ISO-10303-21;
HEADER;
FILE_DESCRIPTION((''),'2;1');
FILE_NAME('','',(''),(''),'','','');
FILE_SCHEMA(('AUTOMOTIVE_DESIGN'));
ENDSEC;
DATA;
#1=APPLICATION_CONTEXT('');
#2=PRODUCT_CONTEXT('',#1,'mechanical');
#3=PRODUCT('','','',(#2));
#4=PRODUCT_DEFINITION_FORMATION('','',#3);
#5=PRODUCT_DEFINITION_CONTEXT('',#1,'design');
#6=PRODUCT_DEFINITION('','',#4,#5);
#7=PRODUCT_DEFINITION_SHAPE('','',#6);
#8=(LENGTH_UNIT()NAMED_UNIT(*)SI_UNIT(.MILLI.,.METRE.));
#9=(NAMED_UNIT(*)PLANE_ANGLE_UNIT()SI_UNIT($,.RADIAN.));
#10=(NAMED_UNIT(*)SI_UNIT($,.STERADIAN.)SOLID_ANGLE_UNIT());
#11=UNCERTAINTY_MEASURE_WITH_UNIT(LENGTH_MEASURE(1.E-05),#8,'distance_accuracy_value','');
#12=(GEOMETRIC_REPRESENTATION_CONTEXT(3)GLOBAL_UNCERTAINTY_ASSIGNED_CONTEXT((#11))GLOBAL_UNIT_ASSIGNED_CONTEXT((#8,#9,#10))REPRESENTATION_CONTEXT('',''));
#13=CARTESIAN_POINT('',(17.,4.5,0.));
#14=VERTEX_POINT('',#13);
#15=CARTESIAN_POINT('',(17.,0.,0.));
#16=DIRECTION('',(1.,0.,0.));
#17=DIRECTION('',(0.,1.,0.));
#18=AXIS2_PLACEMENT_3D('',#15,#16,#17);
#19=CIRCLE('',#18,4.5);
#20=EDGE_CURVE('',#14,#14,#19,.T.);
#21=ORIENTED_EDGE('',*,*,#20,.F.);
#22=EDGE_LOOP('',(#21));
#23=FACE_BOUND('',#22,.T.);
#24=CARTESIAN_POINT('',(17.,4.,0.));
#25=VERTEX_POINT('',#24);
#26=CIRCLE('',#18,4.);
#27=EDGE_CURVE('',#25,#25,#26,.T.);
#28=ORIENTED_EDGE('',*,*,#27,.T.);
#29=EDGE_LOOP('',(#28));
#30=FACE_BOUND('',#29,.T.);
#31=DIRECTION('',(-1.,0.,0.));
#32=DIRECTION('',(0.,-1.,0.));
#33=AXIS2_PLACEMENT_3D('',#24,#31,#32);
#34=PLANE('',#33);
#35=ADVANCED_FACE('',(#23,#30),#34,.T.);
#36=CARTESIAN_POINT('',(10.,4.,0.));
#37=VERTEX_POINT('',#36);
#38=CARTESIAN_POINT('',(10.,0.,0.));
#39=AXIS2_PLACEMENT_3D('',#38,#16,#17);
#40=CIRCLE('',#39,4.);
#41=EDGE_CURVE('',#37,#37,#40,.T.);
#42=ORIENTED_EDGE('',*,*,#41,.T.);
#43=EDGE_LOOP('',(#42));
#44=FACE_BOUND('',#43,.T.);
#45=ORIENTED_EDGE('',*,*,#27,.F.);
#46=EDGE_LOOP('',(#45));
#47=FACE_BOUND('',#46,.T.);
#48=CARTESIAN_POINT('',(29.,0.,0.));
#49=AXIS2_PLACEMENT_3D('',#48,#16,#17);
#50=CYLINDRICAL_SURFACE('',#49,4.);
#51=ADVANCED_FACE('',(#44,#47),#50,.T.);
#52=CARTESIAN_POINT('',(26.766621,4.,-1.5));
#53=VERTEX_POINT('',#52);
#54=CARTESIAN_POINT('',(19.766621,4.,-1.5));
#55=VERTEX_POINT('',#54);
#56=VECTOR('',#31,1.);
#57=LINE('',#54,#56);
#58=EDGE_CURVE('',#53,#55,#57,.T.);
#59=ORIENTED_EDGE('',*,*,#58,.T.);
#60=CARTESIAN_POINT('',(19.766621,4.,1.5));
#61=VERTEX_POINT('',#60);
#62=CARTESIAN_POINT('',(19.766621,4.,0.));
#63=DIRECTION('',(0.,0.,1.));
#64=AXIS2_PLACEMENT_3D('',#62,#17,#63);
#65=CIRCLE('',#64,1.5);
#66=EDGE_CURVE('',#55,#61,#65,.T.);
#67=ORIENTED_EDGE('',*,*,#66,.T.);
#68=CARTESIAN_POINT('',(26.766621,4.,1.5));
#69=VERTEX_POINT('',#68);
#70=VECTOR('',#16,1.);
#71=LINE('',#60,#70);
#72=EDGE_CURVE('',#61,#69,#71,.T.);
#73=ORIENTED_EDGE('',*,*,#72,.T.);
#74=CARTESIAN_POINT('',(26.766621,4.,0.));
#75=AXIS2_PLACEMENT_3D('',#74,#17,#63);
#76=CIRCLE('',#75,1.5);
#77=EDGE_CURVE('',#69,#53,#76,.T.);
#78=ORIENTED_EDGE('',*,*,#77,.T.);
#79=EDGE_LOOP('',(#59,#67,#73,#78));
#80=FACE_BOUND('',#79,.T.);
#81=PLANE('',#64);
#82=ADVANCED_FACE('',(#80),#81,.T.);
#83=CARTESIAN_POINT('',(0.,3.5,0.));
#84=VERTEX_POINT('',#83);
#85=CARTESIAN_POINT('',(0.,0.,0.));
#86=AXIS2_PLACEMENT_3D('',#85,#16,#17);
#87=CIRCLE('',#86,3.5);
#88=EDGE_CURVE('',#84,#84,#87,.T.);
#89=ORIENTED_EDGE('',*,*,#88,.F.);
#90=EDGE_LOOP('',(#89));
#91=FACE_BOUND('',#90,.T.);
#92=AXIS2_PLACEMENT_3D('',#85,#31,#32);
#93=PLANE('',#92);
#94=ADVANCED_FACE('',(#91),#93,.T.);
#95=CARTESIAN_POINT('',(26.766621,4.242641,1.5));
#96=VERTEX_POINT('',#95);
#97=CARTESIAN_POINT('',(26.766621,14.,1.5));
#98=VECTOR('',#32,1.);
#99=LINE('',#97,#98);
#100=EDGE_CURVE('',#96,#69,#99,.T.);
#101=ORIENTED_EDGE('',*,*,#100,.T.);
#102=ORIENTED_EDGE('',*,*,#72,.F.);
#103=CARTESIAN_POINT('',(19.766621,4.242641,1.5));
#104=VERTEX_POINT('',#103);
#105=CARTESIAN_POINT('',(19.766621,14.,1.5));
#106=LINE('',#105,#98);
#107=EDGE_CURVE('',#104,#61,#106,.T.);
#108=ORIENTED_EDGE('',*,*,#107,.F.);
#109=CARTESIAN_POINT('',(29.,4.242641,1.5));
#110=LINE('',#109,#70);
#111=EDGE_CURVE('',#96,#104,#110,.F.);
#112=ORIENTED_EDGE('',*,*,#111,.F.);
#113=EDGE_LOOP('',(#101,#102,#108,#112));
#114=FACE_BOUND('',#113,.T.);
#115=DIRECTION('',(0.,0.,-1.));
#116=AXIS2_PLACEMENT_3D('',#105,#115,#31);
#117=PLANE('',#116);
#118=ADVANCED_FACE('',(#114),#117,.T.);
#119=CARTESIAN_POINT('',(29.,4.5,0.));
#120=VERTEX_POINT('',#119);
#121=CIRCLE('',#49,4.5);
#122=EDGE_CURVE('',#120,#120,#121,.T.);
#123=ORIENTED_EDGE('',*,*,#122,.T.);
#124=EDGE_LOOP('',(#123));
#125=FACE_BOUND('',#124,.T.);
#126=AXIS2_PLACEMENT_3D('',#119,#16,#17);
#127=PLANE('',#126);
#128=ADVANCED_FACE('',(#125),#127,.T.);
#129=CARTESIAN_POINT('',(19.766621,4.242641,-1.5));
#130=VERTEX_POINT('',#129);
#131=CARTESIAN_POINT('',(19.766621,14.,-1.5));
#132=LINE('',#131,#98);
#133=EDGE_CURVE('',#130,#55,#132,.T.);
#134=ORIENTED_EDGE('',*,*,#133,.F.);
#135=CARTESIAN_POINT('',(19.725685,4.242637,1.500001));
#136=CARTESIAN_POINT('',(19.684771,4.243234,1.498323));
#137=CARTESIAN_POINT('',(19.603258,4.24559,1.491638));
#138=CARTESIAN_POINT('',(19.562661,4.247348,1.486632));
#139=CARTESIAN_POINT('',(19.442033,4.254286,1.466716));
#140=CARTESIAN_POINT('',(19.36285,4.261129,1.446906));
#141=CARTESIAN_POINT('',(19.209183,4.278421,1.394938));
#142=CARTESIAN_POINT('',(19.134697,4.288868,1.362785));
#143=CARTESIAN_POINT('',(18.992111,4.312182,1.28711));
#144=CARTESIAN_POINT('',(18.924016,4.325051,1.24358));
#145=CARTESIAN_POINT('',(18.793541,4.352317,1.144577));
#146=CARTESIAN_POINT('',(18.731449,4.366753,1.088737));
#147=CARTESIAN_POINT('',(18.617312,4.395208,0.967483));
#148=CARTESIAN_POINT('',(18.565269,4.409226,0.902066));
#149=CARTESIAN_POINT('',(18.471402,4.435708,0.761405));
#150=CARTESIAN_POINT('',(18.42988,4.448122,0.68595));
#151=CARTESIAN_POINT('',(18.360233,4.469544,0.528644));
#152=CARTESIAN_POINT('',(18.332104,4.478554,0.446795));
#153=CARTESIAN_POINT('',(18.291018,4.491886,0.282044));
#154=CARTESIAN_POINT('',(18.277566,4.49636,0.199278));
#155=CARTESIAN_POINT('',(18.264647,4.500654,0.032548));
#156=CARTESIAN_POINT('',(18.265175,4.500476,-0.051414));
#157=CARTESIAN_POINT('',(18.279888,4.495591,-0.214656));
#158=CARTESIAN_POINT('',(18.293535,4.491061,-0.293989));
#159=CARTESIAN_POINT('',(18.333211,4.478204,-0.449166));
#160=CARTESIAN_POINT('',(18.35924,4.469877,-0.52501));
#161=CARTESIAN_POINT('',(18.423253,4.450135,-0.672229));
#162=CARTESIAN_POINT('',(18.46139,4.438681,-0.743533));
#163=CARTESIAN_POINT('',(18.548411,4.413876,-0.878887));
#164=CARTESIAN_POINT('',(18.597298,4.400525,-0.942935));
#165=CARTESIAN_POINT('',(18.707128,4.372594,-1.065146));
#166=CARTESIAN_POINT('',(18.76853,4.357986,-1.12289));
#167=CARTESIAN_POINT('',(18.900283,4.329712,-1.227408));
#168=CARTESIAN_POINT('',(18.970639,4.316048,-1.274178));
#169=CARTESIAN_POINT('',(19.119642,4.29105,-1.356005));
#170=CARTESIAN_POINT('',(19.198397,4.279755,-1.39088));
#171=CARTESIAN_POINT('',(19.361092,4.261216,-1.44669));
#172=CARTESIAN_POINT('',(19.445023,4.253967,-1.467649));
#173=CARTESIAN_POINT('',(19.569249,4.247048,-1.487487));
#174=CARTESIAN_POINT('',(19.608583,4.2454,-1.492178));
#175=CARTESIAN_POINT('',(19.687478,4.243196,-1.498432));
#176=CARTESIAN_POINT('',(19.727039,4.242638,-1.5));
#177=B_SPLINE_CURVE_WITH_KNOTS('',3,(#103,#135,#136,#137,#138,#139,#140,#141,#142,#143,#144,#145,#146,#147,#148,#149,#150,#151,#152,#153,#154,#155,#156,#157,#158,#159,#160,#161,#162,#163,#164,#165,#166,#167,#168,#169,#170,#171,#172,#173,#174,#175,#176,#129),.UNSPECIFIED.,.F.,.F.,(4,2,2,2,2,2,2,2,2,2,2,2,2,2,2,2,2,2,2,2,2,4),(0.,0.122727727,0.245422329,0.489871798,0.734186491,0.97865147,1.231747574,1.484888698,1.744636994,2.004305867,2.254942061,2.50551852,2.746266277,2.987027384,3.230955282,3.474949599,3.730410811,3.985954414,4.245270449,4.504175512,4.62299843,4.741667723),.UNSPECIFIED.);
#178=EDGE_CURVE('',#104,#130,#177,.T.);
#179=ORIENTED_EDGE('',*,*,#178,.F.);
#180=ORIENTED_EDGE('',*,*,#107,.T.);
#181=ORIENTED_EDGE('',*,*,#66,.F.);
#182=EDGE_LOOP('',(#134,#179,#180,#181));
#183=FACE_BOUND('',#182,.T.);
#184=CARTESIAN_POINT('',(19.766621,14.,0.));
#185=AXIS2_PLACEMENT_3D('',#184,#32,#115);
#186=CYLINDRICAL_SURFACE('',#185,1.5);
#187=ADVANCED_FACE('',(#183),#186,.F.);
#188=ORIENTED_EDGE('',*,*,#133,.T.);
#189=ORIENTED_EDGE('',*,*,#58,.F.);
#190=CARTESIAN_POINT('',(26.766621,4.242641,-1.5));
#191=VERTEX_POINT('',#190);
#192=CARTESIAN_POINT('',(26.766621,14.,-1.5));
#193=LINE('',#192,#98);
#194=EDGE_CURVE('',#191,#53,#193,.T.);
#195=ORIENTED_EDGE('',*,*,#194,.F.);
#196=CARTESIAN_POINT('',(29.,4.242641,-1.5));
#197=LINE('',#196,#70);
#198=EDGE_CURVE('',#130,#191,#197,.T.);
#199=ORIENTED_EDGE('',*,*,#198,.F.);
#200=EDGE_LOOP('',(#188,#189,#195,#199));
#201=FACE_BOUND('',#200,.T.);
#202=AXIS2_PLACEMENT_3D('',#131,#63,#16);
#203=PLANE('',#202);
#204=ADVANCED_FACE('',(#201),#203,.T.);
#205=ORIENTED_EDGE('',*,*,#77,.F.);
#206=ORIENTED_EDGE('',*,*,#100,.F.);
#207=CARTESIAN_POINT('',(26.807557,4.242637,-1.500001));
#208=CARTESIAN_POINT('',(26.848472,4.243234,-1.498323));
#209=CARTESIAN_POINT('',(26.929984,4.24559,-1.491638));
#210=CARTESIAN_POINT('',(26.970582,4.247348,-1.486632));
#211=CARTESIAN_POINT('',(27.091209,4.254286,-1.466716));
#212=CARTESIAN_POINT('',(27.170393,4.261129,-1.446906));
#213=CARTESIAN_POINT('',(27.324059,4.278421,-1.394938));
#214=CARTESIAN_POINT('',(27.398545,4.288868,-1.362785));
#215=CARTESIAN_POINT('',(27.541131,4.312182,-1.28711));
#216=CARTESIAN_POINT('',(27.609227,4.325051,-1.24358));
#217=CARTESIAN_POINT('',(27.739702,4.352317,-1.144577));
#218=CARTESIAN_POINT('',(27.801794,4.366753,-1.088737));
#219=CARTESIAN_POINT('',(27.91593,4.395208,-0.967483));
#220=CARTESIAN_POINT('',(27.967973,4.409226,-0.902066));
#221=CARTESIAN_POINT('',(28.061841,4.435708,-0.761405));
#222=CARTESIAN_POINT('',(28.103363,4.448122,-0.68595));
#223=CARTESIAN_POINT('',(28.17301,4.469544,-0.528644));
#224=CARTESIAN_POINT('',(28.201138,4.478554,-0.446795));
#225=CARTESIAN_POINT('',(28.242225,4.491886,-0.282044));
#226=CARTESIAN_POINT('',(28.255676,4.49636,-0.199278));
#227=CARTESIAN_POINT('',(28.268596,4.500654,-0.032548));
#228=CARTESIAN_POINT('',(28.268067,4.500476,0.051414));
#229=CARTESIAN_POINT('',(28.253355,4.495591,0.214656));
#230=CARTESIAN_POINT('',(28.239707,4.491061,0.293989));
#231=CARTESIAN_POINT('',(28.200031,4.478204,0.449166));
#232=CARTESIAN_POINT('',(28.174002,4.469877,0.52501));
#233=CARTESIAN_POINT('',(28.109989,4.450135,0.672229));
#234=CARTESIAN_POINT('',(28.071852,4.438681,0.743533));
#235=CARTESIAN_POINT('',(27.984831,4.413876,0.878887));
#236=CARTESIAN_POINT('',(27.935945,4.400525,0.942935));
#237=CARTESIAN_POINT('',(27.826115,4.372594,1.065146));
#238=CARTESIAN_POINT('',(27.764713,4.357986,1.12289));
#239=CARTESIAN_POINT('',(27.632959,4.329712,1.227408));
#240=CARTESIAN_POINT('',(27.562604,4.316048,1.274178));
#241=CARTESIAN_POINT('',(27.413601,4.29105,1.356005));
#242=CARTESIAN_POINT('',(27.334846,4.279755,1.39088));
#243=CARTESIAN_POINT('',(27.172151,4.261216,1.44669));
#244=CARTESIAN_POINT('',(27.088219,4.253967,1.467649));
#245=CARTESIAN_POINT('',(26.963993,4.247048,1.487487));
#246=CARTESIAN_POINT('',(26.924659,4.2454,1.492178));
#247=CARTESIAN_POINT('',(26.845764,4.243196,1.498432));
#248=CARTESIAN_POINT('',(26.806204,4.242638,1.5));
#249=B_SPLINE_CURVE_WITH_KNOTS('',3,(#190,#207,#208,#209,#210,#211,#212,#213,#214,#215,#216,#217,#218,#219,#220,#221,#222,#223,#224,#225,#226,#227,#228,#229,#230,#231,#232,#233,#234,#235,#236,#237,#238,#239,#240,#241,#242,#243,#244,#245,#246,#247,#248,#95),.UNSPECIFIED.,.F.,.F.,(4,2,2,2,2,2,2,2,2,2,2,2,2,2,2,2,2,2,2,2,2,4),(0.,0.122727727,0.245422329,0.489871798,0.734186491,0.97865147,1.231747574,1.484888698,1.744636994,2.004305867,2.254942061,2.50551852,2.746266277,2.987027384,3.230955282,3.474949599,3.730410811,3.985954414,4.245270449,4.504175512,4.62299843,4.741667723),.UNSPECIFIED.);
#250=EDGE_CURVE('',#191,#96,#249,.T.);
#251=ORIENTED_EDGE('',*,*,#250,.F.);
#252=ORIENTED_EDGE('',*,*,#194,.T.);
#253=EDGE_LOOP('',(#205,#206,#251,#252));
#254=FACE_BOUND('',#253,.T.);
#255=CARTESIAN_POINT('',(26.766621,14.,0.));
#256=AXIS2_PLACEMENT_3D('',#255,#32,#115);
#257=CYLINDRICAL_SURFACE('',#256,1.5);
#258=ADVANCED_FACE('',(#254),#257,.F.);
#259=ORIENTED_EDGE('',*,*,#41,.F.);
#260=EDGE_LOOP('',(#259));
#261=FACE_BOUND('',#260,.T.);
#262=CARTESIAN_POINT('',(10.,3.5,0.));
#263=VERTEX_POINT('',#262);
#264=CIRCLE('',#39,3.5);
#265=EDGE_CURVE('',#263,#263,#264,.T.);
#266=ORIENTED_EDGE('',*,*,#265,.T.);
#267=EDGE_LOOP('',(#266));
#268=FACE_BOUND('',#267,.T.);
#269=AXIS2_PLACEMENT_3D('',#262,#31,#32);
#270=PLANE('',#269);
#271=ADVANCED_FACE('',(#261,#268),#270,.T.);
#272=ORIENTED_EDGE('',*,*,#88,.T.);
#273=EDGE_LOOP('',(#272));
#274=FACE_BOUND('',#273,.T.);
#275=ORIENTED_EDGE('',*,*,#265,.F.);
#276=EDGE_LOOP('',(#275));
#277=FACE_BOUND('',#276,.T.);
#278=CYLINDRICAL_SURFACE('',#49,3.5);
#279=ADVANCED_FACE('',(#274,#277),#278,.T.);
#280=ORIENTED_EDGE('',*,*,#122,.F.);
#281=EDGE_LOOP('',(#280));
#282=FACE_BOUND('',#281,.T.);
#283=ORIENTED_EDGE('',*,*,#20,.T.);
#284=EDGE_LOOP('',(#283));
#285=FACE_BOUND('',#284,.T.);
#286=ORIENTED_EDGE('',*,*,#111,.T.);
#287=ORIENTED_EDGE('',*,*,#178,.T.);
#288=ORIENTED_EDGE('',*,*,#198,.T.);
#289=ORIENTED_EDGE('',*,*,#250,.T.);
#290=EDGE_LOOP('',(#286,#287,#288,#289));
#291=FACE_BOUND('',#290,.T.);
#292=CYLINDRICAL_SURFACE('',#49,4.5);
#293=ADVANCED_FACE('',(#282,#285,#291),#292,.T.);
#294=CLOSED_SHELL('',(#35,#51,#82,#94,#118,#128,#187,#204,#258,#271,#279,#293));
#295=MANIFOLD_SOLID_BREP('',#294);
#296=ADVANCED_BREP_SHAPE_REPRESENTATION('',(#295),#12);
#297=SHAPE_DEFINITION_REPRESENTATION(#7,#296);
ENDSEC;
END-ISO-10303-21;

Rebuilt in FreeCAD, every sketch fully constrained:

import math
import FreeCAD as App
import Part
import Sketcher

doc = App.newDocument("Part")
params = doc.addObject("Spreadsheet::Sheet", "Params")
for row, (alias, value) in enumerate([
    ("sketch1_width", "29 mm"),
    ("sketch1_width2", "12 mm"),
    ("sketch1_width3", "7 mm"),
    ("sketch1_height", "3.5 mm"),
    ("sketch1_height2", "4.5 mm"),
    ("revolution_angle", "360 deg"),
    ("sketch2_radius", "1.5 mm"),
    ("sketch2_width", "7 mm"),
    ("pocket1_length", "10 mm"),
], start=1):
    params.set(f"A{row}", alias)
    params.set(f"B{row}", "=" + value)
    params.setAlias(f"B{row}", alias)

body = doc.addObject("PartDesign::Body", "Body")

# Sketch on XY plane
sketch1 = doc.addObject("Sketcher::SketchObject", "Sketch")
body.addObject(sketch1)
sketch1.AttachmentSupport = (doc.XY_Plane, [""])
sketch1.MapMode = "FlatFace"
sketch1.addGeometry(Part.LineSegment(App.Vector(0, 3.5, 0), App.Vector(0, 0, 0)), False)
sketch1.addGeometry(Part.LineSegment(App.Vector(0, 0, 0), App.Vector(29, 0, 0)), False)
sketch1.addGeometry(Part.LineSegment(App.Vector(29, 0, 0), App.Vector(29, 4.5, 0)), False)
sketch1.addGeometry(Part.LineSegment(App.Vector(29, 4.5, 0), App.Vector(17, 4.5, 0)), False)
sketch1.addGeometry(Part.LineSegment(App.Vector(17, 4.5, 0), App.Vector(17, 4, 0)), False)
sketch1.addGeometry(Part.LineSegment(App.Vector(17, 4, 0), App.Vector(10, 4, 0)), False)
sketch1.addGeometry(Part.LineSegment(App.Vector(10, 4, 0), App.Vector(10, 3.5, 0)), False)
sketch1.addGeometry(Part.LineSegment(App.Vector(10, 3.5, 0), App.Vector(0, 3.5, 0)), False)
sketch1.addConstraint(Sketcher.Constraint("Coincident", 0, 2, 1, 1))
sketch1.addConstraint(Sketcher.Constraint("Coincident", 1, 2, 2, 1))
sketch1.addConstraint(Sketcher.Constraint("Coincident", 2, 2, 3, 1))
sketch1.addConstraint(Sketcher.Constraint("Coincident", 3, 2, 4, 1))
sketch1.addConstraint(Sketcher.Constraint("Coincident", 4, 2, 5, 1))
sketch1.addConstraint(Sketcher.Constraint("Coincident", 5, 2, 6, 1))
sketch1.addConstraint(Sketcher.Constraint("Coincident", 6, 2, 7, 1))
sketch1.addConstraint(Sketcher.Constraint("Coincident", 7, 2, 0, 1))
sketch1.addConstraint(Sketcher.Constraint("Vertical", 0))
sketch1.addConstraint(Sketcher.Constraint("Horizontal", 1))
sketch1.addConstraint(Sketcher.Constraint("Vertical", 2))
sketch1.addConstraint(Sketcher.Constraint("Horizontal", 3))
sketch1.addConstraint(Sketcher.Constraint("Vertical", 4))
sketch1.addConstraint(Sketcher.Constraint("Horizontal", 5))
sketch1.addConstraint(Sketcher.Constraint("Vertical", 6))
sketch1.addConstraint(Sketcher.Constraint("Horizontal", 7))
sketch1.addConstraint(Sketcher.Constraint("Coincident", 0, 2, -1, 1))
sketch1.addConstraint(Sketcher.Constraint("Equal", 4, 6))
sketch1.addConstraint(Sketcher.Constraint("DistanceX", 1, 1, 1, 2, 29.0))
sketch1.addConstraint(Sketcher.Constraint("DistanceX", 3, 2, 3, 1, 12.0))
sketch1.addConstraint(Sketcher.Constraint("DistanceX", 5, 2, 5, 1, 7.0))
sketch1.addConstraint(Sketcher.Constraint("DistanceY", 0, 2, 0, 1, 3.5))
sketch1.addConstraint(Sketcher.Constraint("DistanceY", 2, 1, 2, 2, 4.5))
sketch1.setExpression("Constraints[18]", "Params.sketch1_width")
sketch1.setExpression("Constraints[19]", "Params.sketch1_width2")
sketch1.setExpression("Constraints[20]", "Params.sketch1_width3")
sketch1.setExpression("Constraints[21]", "Params.sketch1_height")
sketch1.setExpression("Constraints[22]", "Params.sketch1_height2")
revolution = doc.addObject("PartDesign::Revolution", "Revolution")
body.addObject(revolution)
revolution.Profile = sketch1
revolution.ReferenceAxis = (sketch1, ["H_Axis"])
revolution.setExpression("Angle", "Params.revolution_angle")

# Sketch on XZ plane
sketch2 = doc.addObject("Sketcher::SketchObject", "Sketch001")
body.addObject(sketch2)
sketch2.AttachmentSupport = (doc.XZ_Plane, [""])
sketch2.MapMode = "FlatFace"
sketch2.AttachmentOffset = App.Placement(App.Vector(0, 0, -4), App.Rotation())
sketch2.addGeometry(Part.LineSegment(App.Vector(26.8, -1.5, 0), App.Vector(19.8, -1.5, 0)), False)
sketch2.addGeometry(Part.ArcOfCircle(Part.Circle(App.Vector(19.8, 0, 0), App.Vector(0, 0, 1), 1.5), math.radians(90), math.radians(270)), False)
sketch2.addGeometry(Part.LineSegment(App.Vector(19.8, 1.5, 0), App.Vector(26.8, 1.5, 0)), False)
sketch2.addGeometry(Part.ArcOfCircle(Part.Circle(App.Vector(26.8, 0, 0), App.Vector(0, 0, 1), 1.5), math.radians(-90), math.radians(90)), False)
sketch2.addConstraint(Sketcher.Constraint("Tangent", 0, 2, 1, 2))
sketch2.addConstraint(Sketcher.Constraint("Tangent", 1, 1, 2, 1))
sketch2.addConstraint(Sketcher.Constraint("Tangent", 2, 2, 3, 2))
sketch2.addConstraint(Sketcher.Constraint("Tangent", 3, 1, 0, 1))
sketch2.addConstraint(Sketcher.Constraint("Horizontal", 0))
sketch2.addConstraint(Sketcher.Constraint("Horizontal", 2))
sketch2.addConstraint(Sketcher.Constraint("PointOnObject", 1, 3, -1))
sketch2.addConstraint(Sketcher.Constraint("Radius", 1, 1.5))
sketch2.addConstraint(Sketcher.Constraint("DistanceX", 0, 2, 0, 1, 7.0))
sketch2.addConstraint(Sketcher.Constraint("DistanceX", -1, 1, 1, 3, 19.766621))
sketch2.setExpression("Constraints[7]", "Params.sketch2_radius")
sketch2.setExpression("Constraints[8]", "Params.sketch2_width")
pocket1 = doc.addObject("PartDesign::Pocket", "Pocket")
body.addObject(pocket1)
pocket1.Profile = sketch2
pocket1.setExpression("Length", "Params.pocket1_length")

doc.recompute()
